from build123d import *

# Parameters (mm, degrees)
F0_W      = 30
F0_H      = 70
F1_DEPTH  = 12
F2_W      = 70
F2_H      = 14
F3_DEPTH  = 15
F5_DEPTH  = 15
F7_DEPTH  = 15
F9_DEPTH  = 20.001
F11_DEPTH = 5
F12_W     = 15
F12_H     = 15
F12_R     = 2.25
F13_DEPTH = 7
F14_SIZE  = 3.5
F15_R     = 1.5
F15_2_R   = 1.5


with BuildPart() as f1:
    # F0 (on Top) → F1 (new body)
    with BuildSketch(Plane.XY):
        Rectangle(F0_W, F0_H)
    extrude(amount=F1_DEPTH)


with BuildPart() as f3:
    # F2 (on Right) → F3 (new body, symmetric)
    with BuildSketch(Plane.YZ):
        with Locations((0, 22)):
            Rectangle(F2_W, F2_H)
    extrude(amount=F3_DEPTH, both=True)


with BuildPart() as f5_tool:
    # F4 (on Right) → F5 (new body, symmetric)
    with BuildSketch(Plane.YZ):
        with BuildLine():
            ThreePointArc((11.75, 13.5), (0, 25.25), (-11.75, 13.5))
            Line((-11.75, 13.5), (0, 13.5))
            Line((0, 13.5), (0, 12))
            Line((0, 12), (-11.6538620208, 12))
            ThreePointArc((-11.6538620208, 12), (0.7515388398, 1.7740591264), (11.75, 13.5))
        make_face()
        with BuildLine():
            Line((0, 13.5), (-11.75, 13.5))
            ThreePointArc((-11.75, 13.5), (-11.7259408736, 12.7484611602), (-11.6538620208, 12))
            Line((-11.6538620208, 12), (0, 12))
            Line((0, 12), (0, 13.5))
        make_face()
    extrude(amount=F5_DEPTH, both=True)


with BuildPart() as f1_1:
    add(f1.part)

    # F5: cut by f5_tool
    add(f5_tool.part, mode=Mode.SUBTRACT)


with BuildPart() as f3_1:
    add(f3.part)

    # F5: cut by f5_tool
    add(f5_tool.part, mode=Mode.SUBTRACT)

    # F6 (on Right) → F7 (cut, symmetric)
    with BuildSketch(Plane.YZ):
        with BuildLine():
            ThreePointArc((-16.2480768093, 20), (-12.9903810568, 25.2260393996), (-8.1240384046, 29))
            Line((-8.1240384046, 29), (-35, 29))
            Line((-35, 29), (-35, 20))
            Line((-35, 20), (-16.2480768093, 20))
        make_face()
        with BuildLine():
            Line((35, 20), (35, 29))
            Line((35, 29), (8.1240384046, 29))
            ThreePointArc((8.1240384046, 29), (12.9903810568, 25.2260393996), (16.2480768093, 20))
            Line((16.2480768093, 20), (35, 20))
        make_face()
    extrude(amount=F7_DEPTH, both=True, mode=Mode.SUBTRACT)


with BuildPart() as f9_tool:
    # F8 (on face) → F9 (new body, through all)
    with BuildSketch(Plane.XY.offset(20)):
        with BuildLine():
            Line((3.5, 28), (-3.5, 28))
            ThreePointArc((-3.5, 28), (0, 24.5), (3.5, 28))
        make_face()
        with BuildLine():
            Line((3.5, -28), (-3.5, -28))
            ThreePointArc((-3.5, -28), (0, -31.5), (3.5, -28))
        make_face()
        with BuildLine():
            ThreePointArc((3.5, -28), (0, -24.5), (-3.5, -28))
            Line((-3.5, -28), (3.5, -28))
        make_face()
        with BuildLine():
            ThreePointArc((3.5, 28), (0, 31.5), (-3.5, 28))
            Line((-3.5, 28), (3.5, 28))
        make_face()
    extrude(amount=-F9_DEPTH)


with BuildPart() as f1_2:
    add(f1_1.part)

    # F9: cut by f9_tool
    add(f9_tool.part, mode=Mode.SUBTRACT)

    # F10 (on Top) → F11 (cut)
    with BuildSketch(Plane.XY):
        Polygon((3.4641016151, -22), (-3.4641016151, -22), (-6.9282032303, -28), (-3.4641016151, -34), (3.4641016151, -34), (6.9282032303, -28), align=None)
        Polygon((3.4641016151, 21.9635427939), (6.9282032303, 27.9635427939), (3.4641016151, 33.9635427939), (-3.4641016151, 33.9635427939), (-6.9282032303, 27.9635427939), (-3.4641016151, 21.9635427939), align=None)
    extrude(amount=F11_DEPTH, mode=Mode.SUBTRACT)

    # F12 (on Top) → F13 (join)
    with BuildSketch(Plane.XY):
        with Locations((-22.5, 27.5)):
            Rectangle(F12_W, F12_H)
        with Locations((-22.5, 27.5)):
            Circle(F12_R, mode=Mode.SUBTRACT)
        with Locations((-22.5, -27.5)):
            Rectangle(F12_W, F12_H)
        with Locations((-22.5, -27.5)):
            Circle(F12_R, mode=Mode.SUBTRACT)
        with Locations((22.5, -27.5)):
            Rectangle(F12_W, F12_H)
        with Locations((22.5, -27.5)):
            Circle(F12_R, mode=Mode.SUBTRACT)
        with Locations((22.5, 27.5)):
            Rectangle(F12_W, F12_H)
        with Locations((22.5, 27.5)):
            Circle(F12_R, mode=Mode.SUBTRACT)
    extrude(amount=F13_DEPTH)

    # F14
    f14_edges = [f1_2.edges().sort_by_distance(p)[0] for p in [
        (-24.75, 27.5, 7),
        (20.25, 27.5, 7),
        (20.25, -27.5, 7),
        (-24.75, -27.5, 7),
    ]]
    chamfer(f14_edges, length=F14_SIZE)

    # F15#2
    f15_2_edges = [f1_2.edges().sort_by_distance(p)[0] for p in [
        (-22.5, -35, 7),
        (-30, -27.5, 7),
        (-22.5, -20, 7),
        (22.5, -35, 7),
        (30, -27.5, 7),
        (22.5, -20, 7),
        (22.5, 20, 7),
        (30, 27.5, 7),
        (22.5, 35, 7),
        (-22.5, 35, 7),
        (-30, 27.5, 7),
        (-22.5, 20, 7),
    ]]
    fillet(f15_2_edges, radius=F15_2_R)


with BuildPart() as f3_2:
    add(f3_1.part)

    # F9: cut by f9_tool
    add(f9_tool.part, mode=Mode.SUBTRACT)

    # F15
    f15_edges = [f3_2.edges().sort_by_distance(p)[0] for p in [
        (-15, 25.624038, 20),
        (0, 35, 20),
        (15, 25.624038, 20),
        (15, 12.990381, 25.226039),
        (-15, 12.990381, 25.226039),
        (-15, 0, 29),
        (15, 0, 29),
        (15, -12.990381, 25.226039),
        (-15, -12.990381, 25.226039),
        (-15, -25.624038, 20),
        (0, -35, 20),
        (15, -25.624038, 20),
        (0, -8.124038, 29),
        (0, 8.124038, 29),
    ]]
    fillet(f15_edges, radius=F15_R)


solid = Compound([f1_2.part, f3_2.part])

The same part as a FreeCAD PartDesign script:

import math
import FreeCAD as App
import Part
import Sketcher
from FreeCAD import Vector
Q = App.Units.Quantity


def edges_at(feature, points):
    """Names of the edges that pass closest to the given points."""
    edges = feature.Shape.Edges
    near = lambda p: min(range(len(edges)), key=lambda i: edges[i].distToShape(Part.Vertex(*p))[0])
    return sorted({f"Edge{near(p) + 1}" for p in points})

doc = App.newDocument("Part")
body = doc.addObject("PartDesign::Body", "Body")

# Sketch on XY plane
sketch1 = body.newObject("Sketcher::SketchObject", "Sketch")
sketch1.AttachmentSupport = (doc.getObject("XY_Plane"), [""])
sketch1.MapMode = "FlatFace"
sketch1.addGeometry(Part.LineSegment(Vector(-15, 35, 0), Vector(-15, -35, 0)), False)
sketch1.addGeometry(Part.LineSegment(Vector(-15, -35, 0), Vector(15, -35, 0)), False)
sketch1.addGeometry(Part.LineSegment(Vector(15, -35, 0), Vector(15, 35, 0)), False)
sketch1.addGeometry(Part.LineSegment(Vector(15, 35, 0), Vector(-15, 35, 0)), False)
sketch1.addConstraint(Sketcher.Constraint("Coincident", 0, 2, 1, 1))
sketch1.addConstraint(Sketcher.Constraint("Coincident", 1, 2, 2, 1))
sketch1.addConstraint(Sketcher.Constraint("Coincident", 2, 2, 3, 1))
sketch1.addConstraint(Sketcher.Constraint("Coincident", 3, 2, 0, 1))
sketch1.addConstraint(Sketcher.Constraint("Vertical", 0))
sketch1.addConstraint(Sketcher.Constraint("Horizontal", 1))
sketch1.addConstraint(Sketcher.Constraint("Vertical", 2))
sketch1.addConstraint(Sketcher.Constraint("Horizontal", 3))
sketch1.addConstraint(Sketcher.Constraint("Symmetric", 0, 2, 2, 2, -1, 1))
sketch1.addConstraint(Sketcher.Constraint("DistanceX", 1, 1, 1, 2, Q("30 mm")))
sketch1.addConstraint(Sketcher.Constraint("DistanceY", 0, 2, 0, 1, Q("70 mm")))
pad1 = body.newObject("PartDesign::Pad", "Pad")
pad1.Profile = sketch1
pad1.Length = 12
body2 = doc.addObject("PartDesign::Body", "Body001")

# Sketch on YZ plane
sketch2 = body2.newObject("Sketcher::SketchObject", "Sketch001")
sketch2.AttachmentSupport = (doc.getObject("YZ_Plane001"), [""])
sketch2.MapMode = "FlatFace"
sketch2.addGeometry(Part.LineSegment(Vector(-35, 29, 0), Vector(-35, 15, 0)), False)
sketch2.addGeometry(Part.LineSegment(Vector(-35, 15, 0), Vector(35, 15, 0)), False)
sketch2.addGeometry(Part.LineSegment(Vector(35, 15, 0), Vector(35, 29, 0)), False)
sketch2.addGeometry(Part.LineSegment(Vector(35, 29, 0), Vector(-35, 29, 0)), False)
sketch2.addConstraint(Sketcher.Constraint("Coincident", 0, 2, 1, 1))
sketch2.addConstraint(Sketcher.Constraint("Coincident", 1, 2, 2, 1))
sketch2.addConstraint(Sketcher.Constraint("Coincident", 2, 2, 3, 1))
sketch2.addConstraint(Sketcher.Constraint("Coincident", 3, 2, 0, 1))
sketch2.addConstraint(Sketcher.Constraint("Vertical", 0))
sketch2.addConstraint(Sketcher.Constraint("Horizontal", 1))
sketch2.addConstraint(Sketcher.Constraint("Vertical", 2))
sketch2.addConstraint(Sketcher.Constraint("Horizontal", 3))
sketch2.addConstraint(Sketcher.Constraint("DistanceX", 1, 1, 1, 2, Q("70 mm")))
sketch2.addConstraint(Sketcher.Constraint("DistanceY", 0, 2, 0, 1, Q("14 mm")))
sketch2.addConstraint(Sketcher.Constraint("DistanceX", 0, 2, -1, 1, Q("35 mm")))
sketch2.addConstraint(Sketcher.Constraint("DistanceY", -1, 1, 0, 2, Q("15 mm")))
pad2 = body2.newObject("PartDesign::Pad", "Pad001")
pad2.Profile = sketch2
pad2.Length = 30
pad2.Midplane = True
body3 = doc.addObject("PartDesign::Body", "Body002")

# Sketch on YZ plane
sketch3 = body3.newObject("Sketcher::SketchObject", "Sketch002")
sketch3.AttachmentSupport = (doc.getObject("YZ_Plane002"), [""])
sketch3.MapMode = "FlatFace"
sketch3.addGeometry(Part.ArcOfCircle(Part.Circle(Vector(0, 13.5, 0), Vector(0, 0, 1), 11.8), math.radians(0), math.radians(180)), False)
sketch3.addGeometry(Part.ArcOfCircle(Part.Circle(Vector(0, 13.5, 0), Vector(0, 0, 1), 11.8), math.radians(-180), math.radians(-172.67)), False)
sketch3.addGeometry(Part.ArcOfCircle(Part.Circle(Vector(0, 13.5, 0), Vector(0, 0, 1), 11.8), math.radians(-173), math.radians(0)), False)
sketch3.addConstraint(Sketcher.Constraint("Tangent", 0, 2, 1, 1))
sketch3.addConstraint(Sketcher.Constraint("Tangent", 1, 2, 2, 1))
sketch3.addConstraint(Sketcher.Constraint("Tangent", 2, 2, 0, 1))
sketch3.addConstraint(Sketcher.Constraint("Symmetric", 0, 2, 2, 2, -2))
sketch3.addConstraint(Sketcher.Constraint("Horizontal", 2, 3, 0, 2))
sketch3.addConstraint(Sketcher.Constraint("Radius", 0, Q("11.75 mm")))
sketch3.addConstraint(Sketcher.Constraint("DistanceY", -1, 1, 1, 2, Q("12 mm")))
sketch3.addConstraint(Sketcher.Constraint("DistanceY", -1, 1, 0, 3, Q("13.5 mm")))
pad3 = body3.newObject("PartDesign::Pad", "Pad002")
pad3.Profile = sketch3
pad3.Length = 30
pad3.Midplane = True
doc.recompute()

body4 = doc.addObject("PartDesign::Body", "Body003")
body4.BaseFeature = body3
boolean = body.newObject("PartDesign::Boolean", "Boolean")
boolean.Type = "Cut"
boolean.addObjects([body4])
doc.recompute()

boolean2 = body2.newObject("PartDesign::Boolean", "Boolean001")
boolean2.Type = "Cut"
boolean2.addObjects([body3])

# Sketch on YZ plane
sketch4 = body2.newObject("Sketcher::SketchObject", "Sketch003")
sketch4.AttachmentSupport = (doc.getObject("YZ_Plane001"), [""])
sketch4.MapMode = "FlatFace"
sketch4.addGeometry(Part.ArcOfCircle(Part.Circle(Vector(0, 14, 0), Vector(0, 0, 1), 17), math.radians(118), math.radians(158)), False)
sketch4.addGeometry(Part.LineSegment(Vector(-8, 29, 0), Vector(-35, 29, 0)), False)
sketch4.addGeometry(Part.LineSegment(Vector(-35, 29, 0), Vector(-35, 20, 0)), False)
sketch4.addGeometry(Part.LineSegment(Vector(-35, 20, 0), Vector(-16, 20, 0)), False)
sketch4.addGeometry(Part.LineSegment(Vector(35, 20, 0), Vector(35, 29, 0)), False)
sketch4.addGeometry(Part.LineSegment(Vector(35, 29, 0), Vector(8, 29, 0)), False)
sketch4.addGeometry(Part.ArcOfCircle(Part.Circle(Vector(0, 14, 0), Vector(0, 0, 1), 17), math.radians(22), math.radians(62)), False)
sketch4.addGeometry(Part.LineSegment(Vector(16, 20, 0), Vector(35, 20, 0)), False)
sketch4.addConstraint(Sketcher.Constraint("Coincident", 0, 1, 1, 1))
sketch4.addConstraint(Sketcher.Constraint("Coincident", 1, 2, 2, 1))
sketch4.addConstraint(Sketcher.Constraint("Coincident", 2, 2, 3, 1))
sketch4.addConstraint(Sketcher.Constraint("Coincident", 3, 2, 0, 2))
sketch4.addConstraint(Sketcher.Constraint("Coincident", 4, 2, 5, 1))
sketch4.addConstraint(Sketcher.Constraint("Coincident", 5, 2, 6, 2))
sketch4.addConstraint(Sketcher.Constraint("Coincident", 6, 1, 7, 1))
sketch4.addConstraint(Sketcher.Constraint("Coincident", 7, 2, 4, 1))
sketch4.addConstraint(Sketcher.Constraint("Horizontal", 1))
sketch4.addConstraint(Sketcher.Constraint("Vertical", 2))
sketch4.addConstraint(Sketcher.Constraint("Horizontal", 3))
sketch4.addConstraint(Sketcher.Constraint("Vertical", 4))
sketch4.addConstraint(Sketcher.Constraint("Horizontal", 5))
sketch4.addConstraint(Sketcher.Constraint("Horizontal", 7))
sketch4.addConstraint(Sketcher.Constraint("Coincident", 6, 3, 0, 3))
sketch4.addConstraint(Sketcher.Constraint("Equal", 0, 6))
sketch4.addConstraint(Sketcher.Constraint("Symmetric", 1, 2, 4, 2, -2))
sketch4.addConstraint(Sketcher.Constraint("Symmetric", 3, 2, 6, 1, -2))
sketch4.addConstraint(Sketcher.Constraint("Radius", 0, Q("17.5 mm")))
sketch4.addConstraint(Sketcher.Constraint("DistanceY", 2, 2, 2, 1, Q("9 mm")))
sketch4.addConstraint(Sketcher.Constraint("DistanceY", -1, 1, 0, 1, Q("29 mm")))
sketch4.addConstraint(Sketcher.Constraint("DistanceX", 1, 2, -1, 1, Q("35 mm")))
sketch4.addConstraint(Sketcher.Constraint("DistanceY", -1, 1, 0, 3, Q("13.5 mm")))
pocket1 = body2.newObject("PartDesign::Pocket", "Pocket")
pocket1.Profile = sketch4
pocket1.Length = 30
pocket1.Midplane = True
body5 = doc.addObject("PartDesign::Body", "Body004")
body5.AllowCompound = True

# Sketch on XY plane
sketch5 = body5.newObject("Sketcher::SketchObject", "Sketch004")
sketch5.AttachmentSupport = (doc.getObject("XY_Plane004"), [""])
sketch5.MapMode = "FlatFace"
sketch5.AttachmentOffset = App.Placement(Vector(0, 0, 20), App.Rotation())
sketch5.addGeometry(Part.Circle(Vector(0, 28, 0), Vector(0, 0, 1), 3.5), False)
sketch5.addGeometry(Part.Circle(Vector(0, -28, 0), Vector(0, 0, 1), 3.5), False)
sketch5.addConstraint(Sketcher.Constraint("Equal", 0, 1))
sketch5.addConstraint(Sketcher.Constraint("Symmetric", 0, 3, 1, 3, -1, 1))
sketch5.addConstraint(Sketcher.Constraint("PointOnObject", 0, 3, -2))
sketch5.addConstraint(Sketcher.Constraint("Diameter", 0, Q("7 mm")))
sketch5.addConstraint(Sketcher.Constraint("DistanceY", -1, 1, 0, 3, Q("28 mm")))
pad4 = body5.newObject("PartDesign::Pad", "Pad003")
pad4.Profile = sketch5
pad4.Length = 20.001
pad4.Reversed = True
doc.recompute()

body6 = doc.addObject("PartDesign::Body", "Body005")
body6.BaseFeature = body5
boolean3 = body.newObject("PartDesign::Boolean", "Boolean002")
boolean3.Type = "Cut"
boolean3.addObjects([body6])
doc.recompute()

# Sketch on XY plane
sketch6 = body.newObject("Sketcher::SketchObject", "Sketch005")
sketch6.AttachmentSupport = (doc.getObject("XY_Plane"), [""])
sketch6.MapMode = "FlatFace"
sketch6.addGeometry(Part.LineSegment(Vector(3, -22, 0), Vector(-3, -22, 0)), False)
sketch6.addGeometry(Part.LineSegment(Vector(-3, -22, 0), Vector(-7, -28, 0)), False)
sketch6.addGeometry(Part.LineSegment(Vector(-7, -28, 0), Vector(-3, -34, 0)), False)
sketch6.addGeometry(Part.LineSegment(Vector(-3, -34, 0), Vector(3, -34, 0)), False)
sketch6.addGeometry(Part.LineSegment(Vector(3, -34, 0), Vector(7, -28, 0)), False)
sketch6.addGeometry(Part.LineSegment(Vector(7, -28, 0), Vector(3, -22, 0)), False)
sketch6.addGeometry(Part.LineSegment(Vector(3, 22, 0), Vector(7, 28, 0)), False)
sketch6.addGeometry(Part.LineSegment(Vector(7, 28, 0), Vector(3, 34, 0)), False)
sketch6.addGeometry(Part.LineSegment(Vector(3, 34, 0), Vector(-3, 34, 0)), False)
sketch6.addGeometry(Part.LineSegment(Vector(-3, 34, 0), Vector(-7, 28, 0)), False)
sketch6.addGeometry(Part.LineSegment(Vector(-7, 28, 0), Vector(-3, 22, 0)), False)
sketch6.addGeometry(Part.LineSegment(Vector(-3, 22, 0), Vector(3, 22, 0)), False)
sketch6.addConstraint(Sketcher.Constraint("Coincident", 0, 2, 1, 1))
sketch6.addConstraint(Sketcher.Constraint("Coincident", 1, 2, 2, 1))
sketch6.addConstraint(Sketcher.Constraint("Coincident", 2, 2, 3, 1))
sketch6.addConstraint(Sketcher.Constraint("Coincident", 3, 2, 4, 1))
sketch6.addConstraint(Sketcher.Constraint("Coincident", 4, 2, 5, 1))
sketch6.addConstraint(Sketcher.Constraint("Coincident", 5, 2, 0, 1))
sketch6.addConstraint(Sketcher.Constraint("Coincident", 6, 2, 7, 1))
sketch6.addConstraint(Sketcher.Constraint("Coincident", 7, 2, 8, 1))
sketch6.addConstraint(Sketcher.Constraint("Coincident", 8, 2, 9, 1))
sketch6.addConstraint(Sketcher.Constraint("Coincident", 9, 2, 10, 1))
sketch6.addConstraint(Sketcher.Constraint("Coincident", 10, 2, 11, 1))
sketch6.addConstraint(Sketcher.Constraint("Coincident", 11, 2, 6, 1))
sketch6.addConstraint(Sketcher.Constraint("Horizontal", 0))
sketch6.addConstraint(Sketcher.Constraint("Horizontal", 3))
sketch6.addConstraint(Sketcher.Constraint("Horizontal", 8))
sketch6.addConstraint(Sketcher.Constraint("Horizontal", 11))
sketch6.addConstraint(Sketcher.Constraint("Symmetric", 1, 2, 4, 2, -2))
sketch6.addConstraint(Sketcher.Constraint("Symmetric", 6, 2, 9, 2, -2))
sketch6.addConstraint(Sketcher.Constraint("Parallel", 1, 4))
sketch6.addConstraint(Sketcher.Constraint("Parallel", 2, 5))
sketch6.addConstraint(Sketcher.Constraint("Parallel", 4, 6))
sketch6.addConstraint(Sketcher.Constraint("Parallel", 5, 7))
sketch6.addConstraint(Sketcher.Constraint("Parallel", 6, 9))
sketch6.addConstraint(Sketcher.Constraint("Parallel", 7, 10))
sketch6.addConstraint(Sketcher.Constraint("Vertical", 0, 2, 2, 2))
sketch6.addConstraint(Sketcher.Constraint("Vertical", 3, 2, 5, 2))
sketch6.addConstraint(Sketcher.Constraint("Vertical", 4, 2, 6, 2))
sketch6.addConstraint(Sketcher.Constraint("Vertical", 5, 2, 7, 2))
sketch6.addConstraint(Sketcher.Constraint("Vertical", 8, 2, 10, 2))
sketch6.addConstraint(Sketcher.Constraint("Angle", 1, Q("-120 deg")))
sketch6.addConstraint(Sketcher.Constraint("DistanceY", 0, 2, -1, 1, Q("22 mm")))
sketch6.addConstraint(Sketcher.Constraint("DistanceY", 1, 2, -1, 1, Q("28 mm")))
sketch6.addConstraint(Sketcher.Constraint("DistanceX", 0, 2, -1, 1, Q("3.464102 mm")))
sketch6.addConstraint(Sketcher.Constraint("DistanceY", -1, 1, 6, 2, Q("27.963543 mm")))
pocket2 = body.newObject("PartDesign::Pocket", "Pocket001")
pocket2.Profile = sketch6
pocket2.Length = 5
pocket2.Reversed = True

# Sketch on XY plane
sketch7 = body.newObject("Sketcher::SketchObject", "Sketch006")
sketch7.AttachmentSupport = (doc.getObject("XY_Plane"), [""])
sketch7.MapMode = "FlatFace"
sketch7.addGeometry(Part.LineSegment(Vector(-30, 35, 0), Vector(-30, 20, 0)), False)
sketch7.addGeometry(Part.LineSegment(Vector(-30, 20, 0), Vector(-15, 20, 0)), False)
sketch7.addGeometry(Part.LineSegment(Vector(-15, 20, 0), Vector(-15, 35, 0)), False)
sketch7.addGeometry(Part.LineSegment(Vector(-15, 35, 0), Vector(-30, 35, 0)), False)
sketch7.addGeometry(Part.Circle(Vector(-22.5, 27.5, 0), Vector(0, 0, 1), 2.2), False)
sketch7.addGeometry(Part.LineSegment(Vector(-30, -20, 0), Vector(-30, -35, 0)), False)
sketch7.addGeometry(Part.LineSegment(Vector(-30, -35, 0), Vector(-15, -35, 0)), False)
sketch7.addGeometry(Part.LineSegment(Vector(-15, -35, 0), Vector(-15, -20, 0)), False)
sketch7.addGeometry(Part.LineSegment(Vector(-15, -20, 0), Vector(-30, -20, 0)), False)
sketch7.addGeometry(Part.Circle(Vector(-22.5, -27.5, 0), Vector(0, 0, 1), 2.2), False)
sketch7.addGeometry(Part.LineSegment(Vector(15, -20, 0), Vector(15, -35, 0)), False)
sketch7.addGeometry(Part.LineSegment(Vector(15, -35, 0), Vector(30, -35, 0)), False)
sketch7.addGeometry(Part.LineSegment(Vector(30, -35, 0), Vector(30, -20, 0)), False)
sketch7.addGeometry(Part.LineSegment(Vector(30, -20, 0), Vector(15, -20, 0)), False)
sketch7.addGeometry(Part.Circle(Vector(22.5, -27.5, 0), Vector(0, 0, 1), 2.2), False)
sketch7.addGeometry(Part.LineSegment(Vector(15, 35, 0), Vector(15, 20, 0)), False)
sketch7.addGeometry(Part.LineSegment(Vector(15, 20, 0), Vector(30, 20, 0)), False)
sketch7.addGeometry(Part.LineSegment(Vector(30, 20, 0), Vector(30, 35, 0)), False)
sketch7.addGeometry(Part.LineSegment(Vector(30, 35, 0), Vector(15, 35, 0)), False)
sketch7.addGeometry(Part.Circle(Vector(22.5, 27.5, 0), Vector(0, 0, 1), 2.2), False)
sketch7.addConstraint(Sketcher.Constraint("Coincident", 0, 2, 1, 1))
sketch7.addConstraint(Sketcher.Constraint("Coincident", 1, 2, 2, 1))
sketch7.addConstraint(Sketcher.Constraint("Coincident", 2, 2, 3, 1))
sketch7.addConstraint(Sketcher.Constraint("Coincident", 3, 2, 0, 1))
sketch7.addConstraint(Sketcher.Constraint("Coincident", 5, 2, 6, 1))
sketch7.addConstraint(Sketcher.Constraint("Coincident", 6, 2, 7, 1))
sketch7.addConstraint(Sketcher.Constraint("Coincident", 7, 2, 8, 1))
sketch7.addConstraint(Sketcher.Constraint("Coincident", 8, 2, 5, 1))
sketch7.addConstraint(Sketcher.Constraint("Coincident", 10, 2, 11, 1))
sketch7.addConstraint(Sketcher.Constraint("Coincident", 11, 2, 12, 1))
sketch7.addConstraint(Sketcher.Constraint("Coincident", 12, 2, 13, 1))
sketch7.addConstraint(Sketcher.Constraint("Coincident", 13, 2, 10, 1))
sketch7.addConstraint(Sketcher.Constraint("Coincident", 15, 2, 16, 1))
sketch7.addConstraint(Sketcher.Constraint("Coincident", 16, 2, 17, 1))
sketch7.addConstraint(Sketcher.Constraint("Coincident", 17, 2, 18, 1))
sketch7.addConstraint(Sketcher.Constraint("Coincident", 18, 2, 15, 1))
sketch7.addConstraint(Sketcher.Constraint("Vertical", 0))
sketch7.addConstraint(Sketcher.Constraint("Horizontal", 1))
sketch7.addConstraint(Sketcher.Constraint("Vertical", 2))
sketch7.addConstraint(Sketcher.Constraint("Horizontal", 3))
sketch7.addConstraint(Sketcher.Constraint("Vertical", 5))
sketch7.addConstraint(Sketcher.Constraint("Horizontal", 6))
sketch7.addConstraint(Sketcher.Constraint("Vertical", 7))
sketch7.addConstraint(Sketcher.Constraint("Horizontal", 8))
sketch7.addConstraint(Sketcher.Constraint("Vertical", 10))
sketch7.addConstraint(Sketcher.Constraint("Horizontal", 11))
sketch7.addConstraint(Sketcher.Constraint("Vertical", 12))
sketch7.addConstraint(Sketcher.Constraint("Horizontal", 13))
sketch7.addConstraint(Sketcher.Constraint("Vertical", 15))
sketch7.addConstraint(Sketcher.Constraint("Horizontal", 16))
sketch7.addConstraint(Sketcher.Constraint("Vertical", 17))
sketch7.addConstraint(Sketcher.Constraint("Horizontal", 18))
sketch7.addConstraint(Sketcher.Constraint("Equal", 4, 9))
sketch7.addConstraint(Sketcher.Constraint("Equal", 9, 14))
sketch7.addConstraint(Sketcher.Constraint("Equal", 14, 19))
sketch7.addConstraint(Sketcher.Constraint("Symmetric", 4, 3, 14, 3, -1, 1))
sketch7.addConstraint(Sketcher.Constraint("Symmetric", 9, 3, 19, 3, -1, 1))
sketch7.addConstraint(Sketcher.Constraint("Symmetric", 2, 2, 10, 2, -1, 1))
sketch7.addConstraint(Sketcher.Constraint("Symmetric", 0, 2, 12, 2, -1, 1))
sketch7.addConstraint(Sketcher.Constraint("Symmetric", 7, 2, 15, 2, -1, 1))
sketch7.addConstraint(Sketcher.Constraint("Symmetric", 5, 2, 17, 2, -1, 1))
sketch7.addConstraint(Sketcher.Constraint("Symmetric", 9, 3, 14, 3, -2))
sketch7.addConstraint(Sketcher.Constraint("Symmetric", 6, 2, 10, 2, -2))
sketch7.addConstraint(Sketcher.Constraint("Symmetric", 8, 2, 12, 2, -2))
sketch7.addConstraint(Sketcher.Constraint("Equal", 18, 0))
sketch7.addConstraint(Sketcher.Constraint("Diameter", 4, Q("4.5 mm")))
sketch7.addConstraint(Sketcher.Constraint("DistanceX", 1, 1, 1, 2, Q("15 mm")))
sketch7.addConstraint(Sketcher.Constraint("DistanceX", 0, 2, -1, 1, Q("30 mm")))
sketch7.addConstraint(Sketcher.Constraint("DistanceY", -1, 1, 0, 2, Q("20 mm")))
sketch7.addConstraint(Sketcher.Constraint("DistanceY", 9, 3, 4, 3, Q("55 mm")))
sketch7.addConstraint(Sketcher.Constraint("DistanceX", 9, 3, 14, 3, Q("45 mm")))
pad5 = body.newObject("PartDesign::Pad", "Pad004")
pad5.Profile = sketch7
pad5.Length = 7
doc.recompute()

chamfer = body.newObject("PartDesign::Chamfer", "Chamfer")
chamfer.Base = (pad5, edges_at(pad5, [
    (-24.75, 27.5, 7),
    (20.25, 27.5, 7),
    (20.25, -27.5, 7),
    (-24.75, -27.5, 7),
]))
chamfer.Size = 3.5
doc.recompute()

fillet = body.newObject("PartDesign::Fillet", "Fillet")
fillet.Base = (chamfer, edges_at(chamfer, [
    (-22.5, -35, 7),
    (-30, -27.5, 7),
    (-22.5, -20, 7),
    (22.5, -35, 7),
    (30, -27.5, 7),
    (22.5, -20, 7),
    (22.5, 20, 7),
    (30, 27.5, 7),
    (22.5, 35, 7),
    (-22.5, 35, 7),
    (-30, 27.5, 7),
    (-22.5, 20, 7),
]))
fillet.Radius = 1.5
doc.recompute()

boolean4 = body2.newObject("PartDesign::Boolean", "Boolean003")
boolean4.Type = "Cut"
boolean4.addObjects([body5])
doc.recompute()

fillet2 = body2.newObject("PartDesign::Fillet", "Fillet001")
fillet2.Base = (boolean4, edges_at(boolean4, [
    (-15, 25.624, 20),
    (0, 35, 20),
    (15, 25.624, 20),
    (15, 12.99, 25.226),
    (-15, 12.99, 25.226),
    (-15, 0, 29),
    (15, 0, 29),
    (15, -12.99, 25.226),
    (-15, -12.99, 25.226),
    (-15, -25.624, 20),
    (0, -35, 20),
    (15, -25.624, 20),
    (0, -8.124, 29),
    (0, 8.124, 29),
]))
fillet2.Radius = 1.5

doc.recompute()
